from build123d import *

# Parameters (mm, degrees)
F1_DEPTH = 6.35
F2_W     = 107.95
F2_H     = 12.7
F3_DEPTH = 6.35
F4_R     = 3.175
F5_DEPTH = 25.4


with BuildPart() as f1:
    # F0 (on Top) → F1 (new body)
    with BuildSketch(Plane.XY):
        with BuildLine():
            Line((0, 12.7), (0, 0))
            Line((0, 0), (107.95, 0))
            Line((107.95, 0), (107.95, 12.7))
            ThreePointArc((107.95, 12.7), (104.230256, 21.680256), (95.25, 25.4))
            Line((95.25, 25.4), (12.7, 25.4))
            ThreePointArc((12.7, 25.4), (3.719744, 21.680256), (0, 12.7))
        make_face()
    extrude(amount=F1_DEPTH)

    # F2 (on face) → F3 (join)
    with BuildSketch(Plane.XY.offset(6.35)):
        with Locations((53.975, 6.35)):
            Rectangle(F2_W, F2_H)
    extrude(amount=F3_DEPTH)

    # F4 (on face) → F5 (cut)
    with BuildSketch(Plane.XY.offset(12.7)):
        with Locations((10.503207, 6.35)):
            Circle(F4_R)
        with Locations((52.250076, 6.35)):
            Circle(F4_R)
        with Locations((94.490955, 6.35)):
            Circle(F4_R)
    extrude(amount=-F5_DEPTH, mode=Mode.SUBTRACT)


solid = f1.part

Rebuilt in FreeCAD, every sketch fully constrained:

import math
import FreeCAD as App
import Part
import Sketcher
from FreeCAD import Vector
Q = App.Units.Quantity


def add_polygon(sketch, points):
    """Adds a closed chain of lines whose ends are joined by coincident constraints."""
    first, n = sketch.GeometryCount, len(points)
    for a, b in zip(points, points[1:] + points[:1]):
        sketch.addGeometry(Part.LineSegment(App.Vector(*a, 0), App.Vector(*b, 0)), False)
    for i in range(n):
        sketch.addConstraint(Sketcher.Constraint("Coincident", first + i, 2, first + (i + 1) % n, 1))

doc = App.newDocument("Part")
body = doc.addObject("PartDesign::Body", "Body")

sketch1 = body.newObject("Sketcher::SketchObject", "Sketch")
sketch1.AttachmentSupport = (doc.getObject("XY_Plane"), [""])
sketch1.MapMode = "FlatFace"
sketch1.addGeometry(Part.LineSegment(Vector(0, 13, 0), Vector(0, 0, 0)), False)
sketch1.addGeometry(Part.LineSegment(Vector(0, 0, 0), Vector(108, 0, 0)), False)
sketch1.addGeometry(Part.LineSegment(Vector(108, 0, 0), Vector(108, 13, 0)), False)
sketch1.addGeometry(Part.ArcOfCircle(Part.Circle(Vector(95, 13, 0), Vector(0, 0, 1), 13), math.radians(0), math.radians(90)), False)
sketch1.addGeometry(Part.LineSegment(Vector(95, 25, 0), Vector(13, 25, 0)), False)
sketch1.addGeometry(Part.ArcOfCircle(Part.Circle(Vector(13, 13, 0), Vector(0, 0, 1), 13), math.radians(90), math.radians(180)), False)
sketch1.addConstraint(Sketcher.Constraint("Coincident", 0, 2, 1, 1))
sketch1.addConstraint(Sketcher.Constraint("Coincident", 1, 2, 2, 1))
sketch1.addConstraint(Sketcher.Constraint("Tangent", 2, 2, 3, 1))
sketch1.addConstraint(Sketcher.Constraint("Tangent", 3, 2, 4, 1))
sketch1.addConstraint(Sketcher.Constraint("Tangent", 4, 2, 5, 1))
sketch1.addConstraint(Sketcher.Constraint("Tangent", 5, 2, 0, 1))
sketch1.addConstraint(Sketcher.Constraint("Vertical", 0))
sketch1.addConstraint(Sketcher.Constraint("Horizontal", 1))
sketch1.addConstraint(Sketcher.Constraint("Vertical", 2))
sketch1.addConstraint(Sketcher.Constraint("Horizontal", 4))
sketch1.addConstraint(Sketcher.Constraint("Coincident", 0, 2, -1, 1))
sketch1.addConstraint(Sketcher.Constraint("Equal", 3, 5))
sketch1.addConstraint(Sketcher.Constraint("Radius", 3, Q("0.5 in")))
sketch1.addConstraint(Sketcher.Constraint("DistanceY", 0, 2, 0, 1, Q("0.5 in")))
sketch1.addConstraint(Sketcher.Constraint("DistanceX", 1, 1, 1, 2, Q("4.25 in")))
pad1 = body.newObject("PartDesign::Pad", "Pad")
pad1.Profile = sketch1
pad1.Length = Q("0.25 in")

sketch2 = body.newObject("Sketcher::SketchObject", "Sketch001")
sketch2.AttachmentSupport = (doc.getObject("XY_Plane"), [""])
sketch2.MapMode = "FlatFace"
sketch2.AttachmentOffset = App.Placement(Vector(0, 0, 0.25 * 25.4), App.Rotation())
add_polygon(sketch2, [(0, 13), (0, 0), (108, 0), (108, 13)])
sketch2.addConstraint(Sketcher.Constraint("Vertical", 0))
sketch2.addConstraint(Sketcher.Constraint("Horizontal", 1))
sketch2.addConstraint(Sketcher.Constraint("Vertical", 2))
sketch2.addConstraint(Sketcher.Constraint("Horizontal", 3))
sketch2.addConstraint(Sketcher.Constraint("Coincident", 0, 2, -1, 1))
sketch2.addConstraint(Sketcher.Constraint("DistanceY", 0, 2, 0, 1, Q("0.5 in")))
sketch2.addConstraint(Sketcher.Constraint("DistanceX", 1, 1, 1, 2, Q("4.25 in")))
pad2 = body.newObject("PartDesign::Pad", "Pad001")
pad2.Profile = sketch2
pad2.Length = Q("0.25 in")

sketch3 = body.newObject("Sketcher::SketchObject", "Sketch002")
sketch3.AttachmentSupport = (doc.getObject("XY_Plane"), [""])
sketch3.MapMode = "FlatFace"
sketch3.AttachmentOffset = App.Placement(Vector(0, 0, 0.5 * 25.4), App.Rotation())
sketch3.addGeometry(Part.Circle(Vector(10.5, 6.3, 0), Vector(0, 0, 1), 3.2), False)
sketch3.addGeometry(Part.Circle(Vector(52.3, 6.3, 0), Vector(0, 0, 1), 3.2), False)
sketch3.addGeometry(Part.Circle(Vector(94.5, 6.3, 0), Vector(0, 0, 1), 3.2), False)
sketch3.addConstraint(Sketcher.Constraint("Equal", 0, 1))
sketch3.addConstraint(Sketcher.Constraint("Equal", 1, 2))
sketch3.addConstraint(Sketcher.Constraint("Horizontal", 0, 3, 1, 3))
sketch3.addConstraint(Sketcher.Constraint("Horizontal", 1, 3, 2, 3))
sketch3.addConstraint(Sketcher.Constraint("Diameter", 0, Q("0.25 in")))
sketch3.addConstraint(Sketcher.Constraint("DistanceY", -1, 1, 0, 3, Q("0.25 in")))
sketch3.addConstraint(Sketcher.Constraint("DistanceX", 0, 3, 1, 3, Q("41.746869 mm")))
sketch3.addConstraint(Sketcher.Constraint("DistanceX", 1, 3, 2, 3, Q("42.240879 mm")))
sketch3.addConstraint(Sketcher.Constraint("DistanceX", -1, 1, 0, 3, Q("10.503207 mm")))
pocket1 = body.newObject("PartDesign::Pocket", "Pocket")
pocket1.Profile = sketch3
pocket1.Length = Q("1 in")

doc.recompute()
